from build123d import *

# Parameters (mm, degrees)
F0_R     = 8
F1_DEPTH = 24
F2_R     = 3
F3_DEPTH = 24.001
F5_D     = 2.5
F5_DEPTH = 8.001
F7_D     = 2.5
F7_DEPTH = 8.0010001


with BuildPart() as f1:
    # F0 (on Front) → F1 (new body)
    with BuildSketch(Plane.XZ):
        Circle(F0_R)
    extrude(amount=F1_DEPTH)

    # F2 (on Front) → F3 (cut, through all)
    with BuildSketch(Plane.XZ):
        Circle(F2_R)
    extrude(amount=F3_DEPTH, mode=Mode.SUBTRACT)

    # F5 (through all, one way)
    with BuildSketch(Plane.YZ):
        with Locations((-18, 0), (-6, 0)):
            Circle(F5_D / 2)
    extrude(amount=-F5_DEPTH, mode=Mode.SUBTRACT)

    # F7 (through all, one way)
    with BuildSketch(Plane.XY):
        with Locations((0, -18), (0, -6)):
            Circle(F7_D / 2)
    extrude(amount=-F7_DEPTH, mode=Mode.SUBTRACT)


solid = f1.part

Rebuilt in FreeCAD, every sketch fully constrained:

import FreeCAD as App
import Part
import Sketcher
from FreeCAD import Vector

doc = App.newDocument("Part")
params = doc.addObject("Spreadsheet::Sheet", "Params")
for row, (alias, value) in enumerate([
    ("sketch1_diameter", "16 mm"),
    ("pad1_length", "24 mm"),
    ("sketch2_diameter", "6 mm"),
    ("sketch3_diameter", "2.5 mm"),
    ("sketch4_diameter", "2.5 mm"),
], start=1):
    params.set(f"A{row}", alias)
    params.set(f"B{row}", "=" + value)
    params.setAlias(f"B{row}", alias)

body = doc.addObject("PartDesign::Body", "Body")

sketch1 = doc.addObject("Sketcher::SketchObject", "Sketch")
body.addObject(sketch1)
sketch1.AttachmentSupport = (doc.XZ_Plane, [""])
sketch1.MapMode = "FlatFace"
sketch1.addGeometry(Part.Circle(Vector(0, 0, 0), Vector(0, 0, 1), 8), False)
sketch1.addConstraint(Sketcher.Constraint("Coincident", 0, 3, -1, 1))
sketch1.addConstraint(Sketcher.Constraint("Diameter", 0, 16.0))
sketch1.setExpression("Constraints[1]", "Params.sketch1_diameter")
pad1 = doc.addObject("PartDesign::Pad", "Pad")
body.addObject(pad1)
pad1.Profile = sketch1
pad1.setExpression("Length", "Params.pad1_length")

sketch2 = doc.addObject("Sketcher::SketchObject", "Sketch001")
body.addObject(sketch2)
sketch2.AttachmentSupport = (doc.XZ_Plane, [""])
sketch2.MapMode = "FlatFace"
sketch2.addGeometry(Part.Circle(Vector(0, 0, 0), Vector(0, 0, 1), 3), False)
sketch2.addConstraint(Sketcher.Constraint("Coincident", 0, 3, -1, 1))
sketch2.addConstraint(Sketcher.Constraint("Diameter", 0, 6.0))
sketch2.setExpression("Constraints[1]", "Params.sketch2_diameter")
pocket1 = doc.addObject("PartDesign::Pocket", "Pocket")
body.addObject(pocket1)
pocket1.Profile = sketch2
pocket1.Type = "ThroughAll"
pocket1.Reversed = True

sketch3 = doc.addObject("Sketcher::SketchObject", "Sketch002")
body.addObject(sketch3)
sketch3.AttachmentSupport = (doc.YZ_Plane, [""])
sketch3.MapMode = "FlatFace"
sketch3.addGeometry(Part.Circle(Vector(-6, 0, 0), Vector(0, 0, 1), 1.2), False)
sketch3.addGeometry(Part.Circle(Vector(-18, 0, 0), Vector(0, 0, 1), 1.2), False)
sketch3.addConstraint(Sketcher.Constraint("Equal", 0, 1))
sketch3.addConstraint(Sketcher.Constraint("PointOnObject", 0, 3, -1))
sketch3.addConstraint(Sketcher.Constraint("PointOnObject", 1, 3, -1))
sketch3.addConstraint(Sketcher.Constraint("Diameter", 0, 2.5))
sketch3.addConstraint(Sketcher.Constraint("DistanceX", 0, 3, -1, 1, 6.0))
sketch3.addConstraint(Sketcher.Constraint("DistanceX", 1, 3, -1, 1, 18.0))
sketch3.setExpression("Constraints[3]", "Params.sketch3_diameter")
pocket2 = doc.addObject("PartDesign::Pocket", "Pocket001")
body.addObject(pocket2)
pocket2.Profile = sketch3
pocket2.Type = "ThroughAll"

sketch4 = doc.addObject("Sketcher::SketchObject", "Sketch003")
body.addObject(sketch4)
sketch4.AttachmentSupport = (doc.XY_Plane, [""])
sketch4.MapMode = "FlatFace"
sketch4.addGeometry(Part.Circle(Vector(0, -6, 0), Vector(0, 0, 1), 1.2), False)
sketch4.addGeometry(Part.Circle(Vector(0, -18, 0), Vector(0, 0, 1), 1.2), False)
sketch4.addConstraint(Sketcher.Constraint("Equal", 0, 1))
sketch4.addConstraint(Sketcher.Constraint("PointOnObject", 0, 3, -2))
sketch4.addConstraint(Sketcher.Constraint("PointOnObject", 1, 3, -2))
sketch4.addConstraint(Sketcher.Constraint("Diameter", 0, 2.5))
sketch4.addConstraint(Sketcher.Constraint("DistanceY", 0, 3, -1, 1, 6.0))
sketch4.addConstraint(Sketcher.Constraint("DistanceY", 1, 3, -1, 1, 18.0))
sketch4.setExpression("Constraints[3]", "Params.sketch4_diameter")
pocket3 = doc.addObject("PartDesign::Pocket", "Pocket002")
body.addObject(pocket3)
pocket3.Profile = sketch4
pocket3.Type = "ThroughAll"

doc.recompute()
